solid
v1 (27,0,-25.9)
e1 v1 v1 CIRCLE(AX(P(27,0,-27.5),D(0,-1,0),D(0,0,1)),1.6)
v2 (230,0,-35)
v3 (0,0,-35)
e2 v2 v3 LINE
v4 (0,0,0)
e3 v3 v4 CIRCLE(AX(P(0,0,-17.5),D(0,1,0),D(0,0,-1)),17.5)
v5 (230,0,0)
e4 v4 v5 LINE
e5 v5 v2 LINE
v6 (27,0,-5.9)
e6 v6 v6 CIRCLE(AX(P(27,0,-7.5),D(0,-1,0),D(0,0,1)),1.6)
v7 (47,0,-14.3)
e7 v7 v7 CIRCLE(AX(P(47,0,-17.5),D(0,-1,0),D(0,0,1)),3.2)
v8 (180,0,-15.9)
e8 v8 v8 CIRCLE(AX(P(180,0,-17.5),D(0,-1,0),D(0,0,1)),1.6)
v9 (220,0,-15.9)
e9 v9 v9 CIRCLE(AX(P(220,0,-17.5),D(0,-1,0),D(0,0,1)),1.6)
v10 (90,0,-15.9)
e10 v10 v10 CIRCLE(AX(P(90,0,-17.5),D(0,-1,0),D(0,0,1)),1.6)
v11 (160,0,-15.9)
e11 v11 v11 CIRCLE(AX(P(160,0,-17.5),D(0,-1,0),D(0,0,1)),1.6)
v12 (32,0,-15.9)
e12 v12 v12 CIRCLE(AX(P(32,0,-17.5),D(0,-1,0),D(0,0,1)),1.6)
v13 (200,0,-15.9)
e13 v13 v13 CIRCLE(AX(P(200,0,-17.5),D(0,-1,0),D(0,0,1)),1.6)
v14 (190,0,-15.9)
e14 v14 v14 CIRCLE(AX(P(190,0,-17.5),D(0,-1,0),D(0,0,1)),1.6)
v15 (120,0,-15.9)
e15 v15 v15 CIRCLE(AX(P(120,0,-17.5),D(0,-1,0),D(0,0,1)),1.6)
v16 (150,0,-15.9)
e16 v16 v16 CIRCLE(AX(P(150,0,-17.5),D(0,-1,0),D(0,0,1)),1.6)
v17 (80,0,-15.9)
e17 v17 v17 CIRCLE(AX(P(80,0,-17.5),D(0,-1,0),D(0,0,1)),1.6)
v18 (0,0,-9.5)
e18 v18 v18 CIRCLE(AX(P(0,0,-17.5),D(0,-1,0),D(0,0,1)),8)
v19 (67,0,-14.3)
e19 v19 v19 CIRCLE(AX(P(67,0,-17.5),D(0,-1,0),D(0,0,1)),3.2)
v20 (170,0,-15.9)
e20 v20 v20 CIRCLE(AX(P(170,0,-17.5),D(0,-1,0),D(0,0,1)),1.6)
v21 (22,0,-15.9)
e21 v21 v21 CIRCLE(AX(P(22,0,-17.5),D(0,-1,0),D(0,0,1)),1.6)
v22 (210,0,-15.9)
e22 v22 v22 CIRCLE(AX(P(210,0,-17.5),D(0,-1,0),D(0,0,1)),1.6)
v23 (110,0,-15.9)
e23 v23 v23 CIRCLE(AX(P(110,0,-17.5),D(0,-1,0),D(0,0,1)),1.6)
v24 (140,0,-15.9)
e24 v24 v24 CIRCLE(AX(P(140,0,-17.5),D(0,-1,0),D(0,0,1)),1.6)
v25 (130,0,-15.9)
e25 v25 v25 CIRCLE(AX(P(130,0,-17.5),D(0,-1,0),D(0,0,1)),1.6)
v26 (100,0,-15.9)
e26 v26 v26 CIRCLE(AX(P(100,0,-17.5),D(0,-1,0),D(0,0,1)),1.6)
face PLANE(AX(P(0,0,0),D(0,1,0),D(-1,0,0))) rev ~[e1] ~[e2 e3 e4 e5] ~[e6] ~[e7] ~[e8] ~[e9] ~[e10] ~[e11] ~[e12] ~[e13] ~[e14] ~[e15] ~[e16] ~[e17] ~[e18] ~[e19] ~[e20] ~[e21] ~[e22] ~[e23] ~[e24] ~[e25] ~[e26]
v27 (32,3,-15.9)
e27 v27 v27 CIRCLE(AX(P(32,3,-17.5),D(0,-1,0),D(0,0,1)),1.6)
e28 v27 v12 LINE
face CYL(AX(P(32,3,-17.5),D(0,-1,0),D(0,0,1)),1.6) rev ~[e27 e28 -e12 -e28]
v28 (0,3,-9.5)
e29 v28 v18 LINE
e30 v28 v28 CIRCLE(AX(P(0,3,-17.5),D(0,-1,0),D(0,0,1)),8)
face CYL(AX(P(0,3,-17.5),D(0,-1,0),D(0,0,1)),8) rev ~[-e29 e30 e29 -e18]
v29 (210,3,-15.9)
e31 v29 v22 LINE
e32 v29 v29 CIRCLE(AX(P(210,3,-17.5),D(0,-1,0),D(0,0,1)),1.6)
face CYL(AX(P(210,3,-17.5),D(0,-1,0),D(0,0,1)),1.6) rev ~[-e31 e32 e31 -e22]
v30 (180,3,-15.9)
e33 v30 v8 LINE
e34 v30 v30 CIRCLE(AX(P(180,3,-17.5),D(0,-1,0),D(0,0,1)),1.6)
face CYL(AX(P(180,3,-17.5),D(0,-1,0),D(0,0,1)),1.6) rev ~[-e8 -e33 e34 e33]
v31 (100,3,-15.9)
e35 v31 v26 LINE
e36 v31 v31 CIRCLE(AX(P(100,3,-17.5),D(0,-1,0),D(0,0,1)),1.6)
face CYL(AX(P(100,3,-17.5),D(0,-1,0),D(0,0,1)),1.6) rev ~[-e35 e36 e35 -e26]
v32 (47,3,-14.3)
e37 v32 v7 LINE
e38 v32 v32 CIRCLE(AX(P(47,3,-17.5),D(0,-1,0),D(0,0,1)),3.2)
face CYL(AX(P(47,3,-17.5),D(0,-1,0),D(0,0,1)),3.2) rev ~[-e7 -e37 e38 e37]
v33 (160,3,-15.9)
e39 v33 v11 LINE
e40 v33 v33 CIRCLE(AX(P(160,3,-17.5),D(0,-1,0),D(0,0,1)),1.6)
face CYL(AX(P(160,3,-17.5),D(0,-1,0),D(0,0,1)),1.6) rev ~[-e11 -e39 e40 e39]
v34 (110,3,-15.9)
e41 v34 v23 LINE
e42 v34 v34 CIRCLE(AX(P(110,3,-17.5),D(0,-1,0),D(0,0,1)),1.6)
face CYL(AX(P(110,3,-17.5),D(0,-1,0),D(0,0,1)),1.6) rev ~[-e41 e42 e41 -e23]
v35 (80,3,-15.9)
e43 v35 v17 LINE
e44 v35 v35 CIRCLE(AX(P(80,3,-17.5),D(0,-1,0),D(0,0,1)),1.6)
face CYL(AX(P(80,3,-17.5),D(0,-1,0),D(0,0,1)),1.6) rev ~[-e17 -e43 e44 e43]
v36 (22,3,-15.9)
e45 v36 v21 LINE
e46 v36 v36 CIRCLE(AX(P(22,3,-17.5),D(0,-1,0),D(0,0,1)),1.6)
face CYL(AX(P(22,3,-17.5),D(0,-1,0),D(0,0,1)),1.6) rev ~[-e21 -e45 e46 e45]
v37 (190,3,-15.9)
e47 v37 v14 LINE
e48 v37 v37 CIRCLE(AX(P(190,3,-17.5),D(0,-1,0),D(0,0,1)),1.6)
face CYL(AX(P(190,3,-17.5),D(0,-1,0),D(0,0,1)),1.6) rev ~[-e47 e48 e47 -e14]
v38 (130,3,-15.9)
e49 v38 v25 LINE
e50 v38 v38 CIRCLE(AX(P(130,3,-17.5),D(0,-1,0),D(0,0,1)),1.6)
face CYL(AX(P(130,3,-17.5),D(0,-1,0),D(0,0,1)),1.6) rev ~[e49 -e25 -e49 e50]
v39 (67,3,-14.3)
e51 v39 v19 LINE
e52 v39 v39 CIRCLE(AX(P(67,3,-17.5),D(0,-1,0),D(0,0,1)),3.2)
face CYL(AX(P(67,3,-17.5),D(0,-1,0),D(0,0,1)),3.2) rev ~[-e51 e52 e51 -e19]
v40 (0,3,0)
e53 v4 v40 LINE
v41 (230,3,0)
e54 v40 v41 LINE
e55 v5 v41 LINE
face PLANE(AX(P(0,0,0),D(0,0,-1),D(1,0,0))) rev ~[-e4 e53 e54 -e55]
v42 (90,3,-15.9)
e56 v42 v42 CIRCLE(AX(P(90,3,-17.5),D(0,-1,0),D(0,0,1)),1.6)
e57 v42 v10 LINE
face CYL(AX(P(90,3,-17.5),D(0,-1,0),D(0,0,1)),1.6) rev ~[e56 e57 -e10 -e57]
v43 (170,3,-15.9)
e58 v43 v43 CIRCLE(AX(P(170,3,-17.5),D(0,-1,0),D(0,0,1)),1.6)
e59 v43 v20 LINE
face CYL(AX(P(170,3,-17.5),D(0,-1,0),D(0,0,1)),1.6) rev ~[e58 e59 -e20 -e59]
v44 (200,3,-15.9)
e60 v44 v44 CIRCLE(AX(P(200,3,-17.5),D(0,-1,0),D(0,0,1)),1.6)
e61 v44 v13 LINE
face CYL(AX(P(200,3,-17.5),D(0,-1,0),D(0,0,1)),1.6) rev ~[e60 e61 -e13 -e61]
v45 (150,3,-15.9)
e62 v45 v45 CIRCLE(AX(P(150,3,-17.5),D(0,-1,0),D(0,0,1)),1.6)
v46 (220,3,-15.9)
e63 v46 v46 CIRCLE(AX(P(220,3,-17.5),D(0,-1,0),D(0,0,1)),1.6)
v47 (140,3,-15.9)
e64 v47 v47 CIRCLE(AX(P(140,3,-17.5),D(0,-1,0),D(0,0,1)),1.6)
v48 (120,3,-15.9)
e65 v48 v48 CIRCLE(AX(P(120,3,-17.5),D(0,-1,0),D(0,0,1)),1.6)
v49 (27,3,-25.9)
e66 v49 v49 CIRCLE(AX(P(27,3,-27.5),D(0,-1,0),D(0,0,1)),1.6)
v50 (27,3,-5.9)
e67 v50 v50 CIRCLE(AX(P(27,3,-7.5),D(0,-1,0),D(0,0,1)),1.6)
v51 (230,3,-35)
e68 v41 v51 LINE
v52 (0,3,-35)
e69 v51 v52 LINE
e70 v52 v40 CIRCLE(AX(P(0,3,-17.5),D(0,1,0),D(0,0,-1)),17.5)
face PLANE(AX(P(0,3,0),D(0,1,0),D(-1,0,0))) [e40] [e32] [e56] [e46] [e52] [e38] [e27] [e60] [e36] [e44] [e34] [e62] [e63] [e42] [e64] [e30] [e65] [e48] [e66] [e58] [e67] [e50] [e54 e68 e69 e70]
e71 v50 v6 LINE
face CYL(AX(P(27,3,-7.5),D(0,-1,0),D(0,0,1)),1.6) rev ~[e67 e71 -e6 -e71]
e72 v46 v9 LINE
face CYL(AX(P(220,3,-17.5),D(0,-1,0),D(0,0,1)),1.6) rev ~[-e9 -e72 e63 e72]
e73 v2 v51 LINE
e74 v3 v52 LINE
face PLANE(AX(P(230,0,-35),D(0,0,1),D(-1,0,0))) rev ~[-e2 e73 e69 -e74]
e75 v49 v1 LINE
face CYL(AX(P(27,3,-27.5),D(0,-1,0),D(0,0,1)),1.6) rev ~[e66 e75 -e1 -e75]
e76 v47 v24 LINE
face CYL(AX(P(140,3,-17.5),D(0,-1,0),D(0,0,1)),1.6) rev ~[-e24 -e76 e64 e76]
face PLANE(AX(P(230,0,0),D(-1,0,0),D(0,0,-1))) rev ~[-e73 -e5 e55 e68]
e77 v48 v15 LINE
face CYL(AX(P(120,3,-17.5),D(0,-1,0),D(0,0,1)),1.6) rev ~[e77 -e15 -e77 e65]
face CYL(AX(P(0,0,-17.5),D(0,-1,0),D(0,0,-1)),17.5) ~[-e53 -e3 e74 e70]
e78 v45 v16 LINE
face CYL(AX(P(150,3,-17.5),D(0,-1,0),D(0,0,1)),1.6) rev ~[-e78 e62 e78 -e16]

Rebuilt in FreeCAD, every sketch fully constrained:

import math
import FreeCAD as App
import Part
import Sketcher
Q = App.Units.Quantity

doc = App.newDocument("Part")
body = doc.addObject("PartDesign::Body", "Body")

# Sketch on XZ plane
sketch1 = doc.addObject("Sketcher::SketchObject", "Sketch")
body.addObject(sketch1)
sketch1.AttachmentSupport = (doc.XZ_Plane, [""])
sketch1.MapMode = "FlatFace"
sketch1.addGeometry([
    Part.LineSegment(App.Vector(230, -35, 0), App.Vector(0, -35, 0)),
    Part.ArcOfCircle(Part.Circle(App.Vector(0, -17.5, 0), App.Vector(0, 0, 1), 17.5), math.radians(90), math.radians(270)),
    Part.LineSegment(App.Vector(0, 0, 0), App.Vector(230, 0, 0)),
    Part.LineSegment(App.Vector(230, 0, 0), App.Vector(230, -35, 0)),
], False)
sketch1.addConstraint([
    Sketcher.Constraint("Tangent", 0, 2, 1, 2),
    Sketcher.Constraint("Tangent", 1, 1, 2, 1),
    Sketcher.Constraint("Coincident", 2, 2, 3, 1),
    Sketcher.Constraint("Coincident", 3, 2, 0, 1),
    Sketcher.Constraint("Horizontal", 0),
    Sketcher.Constraint("Horizontal", 2),
    Sketcher.Constraint("Vertical", 3),
    Sketcher.Constraint("Coincident", 1, 1, -1, 1),
    Sketcher.Constraint("Radius", 1, Q("17.5 mm")),
    Sketcher.Constraint("DistanceX", 0, 2, 0, 1, Q("230 mm")),
])
pad1 = doc.addObject("PartDesign::Pad", "Pad")
body.addObject(pad1)
pad1.Profile = sketch1
pad1.Length = 3
pad1.Reversed = True

# Sketch on XZ plane
sketch2 = doc.addObject("Sketcher::SketchObject", "Sketch001")
body.addObject(sketch2)
sketch2.AttachmentSupport = (doc.XZ_Plane, [""])
sketch2.MapMode = "FlatFace"
sketch2.AttachmentOffset = App.Placement(App.Vector(0, 0, -3), App.Rotation())
sketch2.addGeometry([
    Part.Circle(App.Vector(90, -17.5, 0), App.Vector(0, 0, 1), 1.6),  # 0
    Part.Circle(App.Vector(100, -17.5, 0), App.Vector(0, 0, 1), 1.6),  # 1
    Part.Circle(App.Vector(110, -17.5, 0), App.Vector(0, 0, 1), 1.6),  # 2
    Part.Circle(App.Vector(120, -17.5, 0), App.Vector(0, 0, 1), 1.6),  # 3
    Part.Circle(App.Vector(130, -17.5, 0), App.Vector(0, 0, 1), 1.6),  # 4
    Part.Circle(App.Vector(140, -17.5, 0), App.Vector(0, 0, 1), 1.6),  # 5
    Part.Circle(App.Vector(150, -17.5, 0), App.Vector(0, 0, 1), 1.6),  # 6
    Part.Circle(App.Vector(160, -17.5, 0), App.Vector(0, 0, 1), 1.6),  # 7
    Part.Circle(App.Vector(170, -17.5, 0), App.Vector(0, 0, 1), 1.6),  # 8
    Part.Circle(App.Vector(180, -17.5, 0), App.Vector(0, 0, 1), 1.6),  # 9
    Part.Circle(App.Vector(190, -17.5, 0), App.Vector(0, 0, 1), 1.6),  # 10
    Part.Circle(App.Vector(200, -17.5, 0), App.Vector(0, 0, 1), 1.6),  # 11
    Part.Circle(App.Vector(210, -17.5, 0), App.Vector(0, 0, 1), 1.6),  # 12
    Part.Circle(App.Vector(220, -17.5, 0), App.Vector(0, 0, 1), 1.6),  # 13
    Part.Circle(App.Vector(80, -17.5, 0), App.Vector(0, 0, 1), 1.6),  # 14
], False)
sketch2.addConstraint([
    Sketcher.Constraint("Equal", 0, 1),
    Sketcher.Constraint("Equal", 1, 2),
    Sketcher.Constraint("Equal", 2, 3),
    Sketcher.Constraint("Equal", 3, 4),
    Sketcher.Constraint("Equal", 4, 5),
    Sketcher.Constraint("Equal", 5, 6),
    Sketcher.Constraint("Equal", 6, 7),
    Sketcher.Constraint("Equal", 7, 8),
    Sketcher.Constraint("Equal", 8, 9),
    Sketcher.Constraint("Equal", 9, 10),
    Sketcher.Constraint("Equal", 10, 11),
    Sketcher.Constraint("Equal", 11, 12),
    Sketcher.Constraint("Equal", 12, 13),
    Sketcher.Constraint("Equal", 13, 14),
    Sketcher.Constraint("Horizontal", 0, 3, 1, 3),
    Sketcher.Constraint("Horizontal", 1, 3, 2, 3),
    Sketcher.Constraint("Horizontal", 2, 3, 3, 3),
    Sketcher.Constraint("Horizontal", 3, 3, 4, 3),
    Sketcher.Constraint("Horizontal", 4, 3, 5, 3),
    Sketcher.Constraint("Horizontal", 5, 3, 6, 3),
    Sketcher.Constraint("Horizontal", 6, 3, 7, 3),
    Sketcher.Constraint("Horizontal", 7, 3, 8, 3),
    Sketcher.Constraint("Horizontal", 8, 3, 9, 3),
    Sketcher.Constraint("Horizontal", 9, 3, 10, 3),
    Sketcher.Constraint("Horizontal", 10, 3, 11, 3),
    Sketcher.Constraint("Horizontal", 11, 3, 12, 3),
    Sketcher.Constraint("Horizontal", 12, 3, 13, 3),
    Sketcher.Constraint("Horizontal", 13, 3, 14, 3),
    Sketcher.Constraint("Diameter", 0, Q("3.2 mm")),
    Sketcher.Constraint("DistanceX", -1, 1, 0, 3, Q("90 mm")),
    Sketcher.Constraint("DistanceX", -1, 1, 1, 3, Q("100 mm")),
    Sketcher.Constraint("DistanceX", -1, 1, 2, 3, Q("110 mm")),
    Sketcher.Constraint("DistanceX", -1, 1, 3, 3, Q("120 mm")),
    Sketcher.Constraint("DistanceX", -1, 1, 4, 3, Q("130 mm")),
    Sketcher.Constraint("DistanceX", -1, 1, 5, 3, Q("140 mm")),
    Sketcher.Constraint("DistanceX", -1, 1, 6, 3, Q("150 mm")),
    Sketcher.Constraint("DistanceX", -1, 1, 7, 3, Q("160 mm")),
    Sketcher.Constraint("DistanceX", -1, 1, 8, 3, Q("170 mm")),
    Sketcher.Constraint("DistanceX", -1, 1, 9, 3, Q("180 mm")),
    Sketcher.Constraint("DistanceX", -1, 1, 10, 3, Q("190 mm")),
    Sketcher.Constraint("DistanceX", -1, 1, 11, 3, Q("200 mm")),
    Sketcher.Constraint("DistanceX", -1, 1, 12, 3, Q("210 mm")),
    Sketcher.Constraint("DistanceX", -1, 1, 13, 3, Q("220 mm")),
    Sketcher.Constraint("DistanceX", -1, 1, 14, 3, Q("80 mm")),
    Sketcher.Constraint("DistanceY", 0, 3, -1, 1, Q("17.5 mm")),
])
doc.recompute()
hole = doc.addObject("PartDesign::Hole", "Hole")
body.addObject(hole)
hole.Profile = sketch2
hole.ThreadType = "None"
hole.Diameter = 3.2
hole.DepthType = "ThroughAll"
hole.Reversed = True

# Sketch on XZ plane
sketch3 = doc.addObject("Sketcher::SketchObject", "Sketch002")
body.addObject(sketch3)
sketch3.AttachmentSupport = (doc.XZ_Plane, [""])
sketch3.MapMode = "FlatFace"
sketch3.AttachmentOffset = App.Placement(App.Vector(0, 0, -3), App.Rotation())
sketch3.addGeometry(Part.Circle(App.Vector(0, -17.5, 0), App.Vector(0, 0, 1), 8), False)
sketch3.addConstraint([
    Sketcher.Constraint("PointOnObject", 0, 3, -2),
    Sketcher.Constraint("Diameter", 0, Q("16 mm")),
    Sketcher.Constraint("DistanceY", 0, 3, -1, 1, Q("17.5 mm")),
])
doc.recompute()
hole2 = doc.addObject("PartDesign::Hole", "Hole001")
body.addObject(hole2)
hole2.Profile = sketch3
hole2.ThreadType = "None"
hole2.Diameter = 16
hole2.DepthType = "ThroughAll"
hole2.Reversed = True

# Sketch on XZ plane
sketch4 = doc.addObject("Sketcher::SketchObject", "Sketch003")
body.addObject(sketch4)
sketch4.AttachmentSupport = (doc.XZ_Plane, [""])
sketch4.MapMode = "FlatFace"
sketch4.AttachmentOffset = App.Placement(App.Vector(0, 0, -3), App.Rotation())
sketch4.addGeometry([
    Part.Circle(App.Vector(67, -17.5, 0), App.Vector(0, 0, 1), 3.2),
    Part.Circle(App.Vector(47, -17.5, 0), App.Vector(0, 0, 1), 3.2),
], False)
sketch4.addConstraint([
    Sketcher.Constraint("Equal", 0, 1),
    Sketcher.Constraint("Horizontal", 0, 3, 1, 3),
    Sketcher.Constraint("Diameter", 0, Q("6.4 mm")),
    Sketcher.Constraint("DistanceX", -1, 1, 0, 3, Q("67 mm")),
    Sketcher.Constraint("DistanceX", -1, 1, 1, 3, Q("47 mm")),
    Sketcher.Constraint("DistanceY", 0, 3, -1, 1, Q("17.5 mm")),
])
doc.recompute()
hole3 = doc.addObject("PartDesign::Hole", "Hole002")
body.addObject(hole3)
hole3.Profile = sketch4
hole3.ThreadType = "None"
hole3.Diameter = 6.4
hole3.DepthType = "ThroughAll"
hole3.Reversed = True

# Sketch on XZ plane
sketch5 = doc.addObject("Sketcher::SketchObject", "Sketch004")
body.addObject(sketch5)
sketch5.AttachmentSupport = (doc.XZ_Plane, [""])
sketch5.MapMode = "FlatFace"
sketch5.AttachmentOffset = App.Placement(App.Vector(0, 0, -3), App.Rotation())
sketch5.addGeometry([
    Part.Circle(App.Vector(32, -17.5, 0), App.Vector(0, 0, 1), 1.6),
    Part.Circle(App.Vector(22, -17.5, 0), App.Vector(0, 0, 1), 1.6),
    Part.Circle(App.Vector(27, -7.5, 0), App.Vector(0, 0, 1), 1.6),
    Part.Circle(App.Vector(27, -27.5, 0), App.Vector(0, 0, 1), 1.6),
], False)
sketch5.addConstraint([
    Sketcher.Constraint("Equal", 0, 1),
    Sketcher.Constraint("Equal", 1, 2),
    Sketcher.Constraint("Equal", 2, 3),
    Sketcher.Constraint("Horizontal", 0, 3, 1, 3),
    Sketcher.Constraint("Vertical", 2, 3, 3, 3),
    Sketcher.Constraint("Diameter", 0, Q("3.2 mm")),
    Sketcher.Constraint("DistanceX", -1, 1, 0, 3, Q("32 mm")),
    Sketcher.Constraint("DistanceX", -1, 1, 1, 3, Q("22 mm")),
    Sketcher.Constraint("DistanceX", -1, 1, 2, 3, Q("27 mm")),
    Sketcher.Constraint("DistanceY", 0, 3, 2, 3, Q("10 mm")),
    Sketcher.Constraint("DistanceY", 3, 3, 0, 3, Q("10 mm")),
    Sketcher.Constraint("DistanceY", 0, 3, -1, 1, Q("17.5 mm")),
])
doc.recompute()
hole4 = doc.addObject("PartDesign::Hole", "Hole003")
body.addObject(hole4)
hole4.Profile = sketch5
hole4.ThreadType = "None"
hole4.Diameter = 3.2
hole4.DepthType = "ThroughAll"
hole4.Reversed = True

doc.recompute()
